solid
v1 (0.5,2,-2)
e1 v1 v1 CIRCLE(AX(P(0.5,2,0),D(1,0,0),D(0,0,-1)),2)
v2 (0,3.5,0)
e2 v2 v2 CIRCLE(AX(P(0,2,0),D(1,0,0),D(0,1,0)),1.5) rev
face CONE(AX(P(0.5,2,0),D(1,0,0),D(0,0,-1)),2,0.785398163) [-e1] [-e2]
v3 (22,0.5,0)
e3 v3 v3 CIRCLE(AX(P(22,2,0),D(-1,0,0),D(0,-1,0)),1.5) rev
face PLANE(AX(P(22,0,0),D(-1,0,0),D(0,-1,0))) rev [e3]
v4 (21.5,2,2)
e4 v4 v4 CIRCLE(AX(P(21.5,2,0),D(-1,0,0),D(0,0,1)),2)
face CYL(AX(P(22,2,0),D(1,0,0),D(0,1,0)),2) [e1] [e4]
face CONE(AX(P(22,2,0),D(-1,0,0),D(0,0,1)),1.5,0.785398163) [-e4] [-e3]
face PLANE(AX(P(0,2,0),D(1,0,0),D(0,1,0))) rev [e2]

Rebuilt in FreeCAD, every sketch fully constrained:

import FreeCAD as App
import Part
import Sketcher
from FreeCAD import Vector


def edges_at(feature, points):
    """Names of the edges that pass closest to the given points."""
    edges = feature.Shape.Edges
    near = lambda p: min(range(len(edges)), key=lambda i: edges[i].distToShape(Part.Vertex(*p))[0])
    return sorted({f"Edge{near(p) + 1}" for p in points})


def add_polygon(sketch, points):
    """Adds a closed chain of lines whose ends are joined by coincident constraints."""
    first, n = sketch.GeometryCount, len(points)
    for a, b in zip(points, points[1:] + points[:1]):
        sketch.addGeometry(Part.LineSegment(App.Vector(*a, 0), App.Vector(*b, 0)), False)
    for i in range(n):
        sketch.addConstraint(Sketcher.Constraint("Coincident", first + i, 2, first + (i + 1) % n, 1))

doc = App.newDocument("Part")
body = doc.addObject("PartDesign::Body", "Body")

# Sketch on XY plane
sketch1 = body.newObject("Sketcher::SketchObject", "Sketch")
sketch1.AttachmentSupport = (doc.getObject("XY_Plane"), [""])
sketch1.MapMode = "FlatFace"
add_polygon(sketch1, [(0, 2), (0, 0), (22, 0), (22, 2)])  # lines 0-3
sketch1.addGeometry(Part.LineSegment(Vector(22, 2, 0), Vector(0, 2, 0)), True)  # axis
sketch1.addConstraint([
    Sketcher.Constraint("Vertical", 0),
    Sketcher.Constraint("Horizontal", 1),
    Sketcher.Constraint("Vertical", 2),
    Sketcher.Constraint("Horizontal", 3),
    Sketcher.Constraint("Horizontal", 4),
    Sketcher.Constraint("Coincident", 0, 2, -1, 1),
    Sketcher.Constraint("Coincident", 4, 1, 2, 2),
    Sketcher.Constraint("PointOnObject", 4, 2, -2),
    Sketcher.Constraint("DistanceX", 1, 1, 1, 2, 22.0),
    Sketcher.Constraint("DistanceY", 0, 2, 0, 1, 2.0),
])
revolution = body.newObject("PartDesign::Revolution", "Revolution")
revolution.Profile = sketch1
revolution.ReferenceAxis = (sketch1, ["Axis0"])
revolution.Angle = 360
doc.recompute()

chamfer = body.newObject("PartDesign::Chamfer", "Chamfer")
chamfer.Base = (revolution, edges_at(revolution, [(22, 4, 0), (0, 4, 0)]))
chamfer.Size = 0.5

doc.recompute()
